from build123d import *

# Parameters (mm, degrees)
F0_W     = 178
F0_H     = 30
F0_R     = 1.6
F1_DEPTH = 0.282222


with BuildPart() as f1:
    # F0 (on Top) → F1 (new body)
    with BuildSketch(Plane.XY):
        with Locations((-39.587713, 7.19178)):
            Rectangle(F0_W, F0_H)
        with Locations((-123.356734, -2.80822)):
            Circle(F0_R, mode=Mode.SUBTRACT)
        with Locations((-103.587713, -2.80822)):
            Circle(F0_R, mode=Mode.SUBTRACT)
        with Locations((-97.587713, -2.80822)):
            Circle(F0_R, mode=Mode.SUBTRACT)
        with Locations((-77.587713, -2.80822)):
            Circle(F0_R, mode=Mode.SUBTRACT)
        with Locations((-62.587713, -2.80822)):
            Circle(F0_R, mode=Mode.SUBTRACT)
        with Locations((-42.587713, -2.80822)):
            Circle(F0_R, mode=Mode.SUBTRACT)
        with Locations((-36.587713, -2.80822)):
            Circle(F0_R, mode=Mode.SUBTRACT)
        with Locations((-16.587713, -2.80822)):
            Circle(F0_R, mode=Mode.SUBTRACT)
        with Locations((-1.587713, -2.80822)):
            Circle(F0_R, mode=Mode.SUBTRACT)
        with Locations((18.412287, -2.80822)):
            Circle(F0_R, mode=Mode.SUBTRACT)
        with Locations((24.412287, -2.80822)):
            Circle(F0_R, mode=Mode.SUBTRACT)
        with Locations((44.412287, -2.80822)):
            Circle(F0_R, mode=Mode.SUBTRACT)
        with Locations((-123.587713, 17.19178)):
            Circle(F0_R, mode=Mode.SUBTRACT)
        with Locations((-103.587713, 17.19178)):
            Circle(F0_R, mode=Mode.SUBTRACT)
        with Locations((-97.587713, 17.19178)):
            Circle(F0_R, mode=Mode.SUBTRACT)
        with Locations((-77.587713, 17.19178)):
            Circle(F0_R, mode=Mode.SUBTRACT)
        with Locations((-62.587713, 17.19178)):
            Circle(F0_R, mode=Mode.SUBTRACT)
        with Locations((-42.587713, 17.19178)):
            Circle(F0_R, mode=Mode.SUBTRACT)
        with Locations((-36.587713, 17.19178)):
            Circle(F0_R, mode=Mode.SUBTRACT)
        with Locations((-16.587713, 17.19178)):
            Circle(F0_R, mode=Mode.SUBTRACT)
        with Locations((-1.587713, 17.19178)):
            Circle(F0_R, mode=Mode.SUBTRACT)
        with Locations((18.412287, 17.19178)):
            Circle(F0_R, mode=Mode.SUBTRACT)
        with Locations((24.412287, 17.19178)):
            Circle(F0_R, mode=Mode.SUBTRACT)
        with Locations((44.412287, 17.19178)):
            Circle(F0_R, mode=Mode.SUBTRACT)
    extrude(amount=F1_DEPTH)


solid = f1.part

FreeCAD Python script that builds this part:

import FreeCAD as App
import Part
import Sketcher
from FreeCAD import Vector
Q = App.Units.Quantity


def add_polygon(sketch, points):
    """Adds a closed chain of lines whose ends are joined by coincident constraints."""
    first, n = sketch.GeometryCount, len(points)
    for a, b in zip(points, points[1:] + points[:1]):
        sketch.addGeometry(Part.LineSegment(App.Vector(*a, 0), App.Vector(*b, 0)), False)
    for i in range(n):
        sketch.addConstraint(Sketcher.Constraint("Coincident", first + i, 2, first + (i + 1) % n, 1))

doc = App.newDocument("Part")
body = doc.addObject("PartDesign::Body", "Body")

# Sketch on XY plane
sketch1 = doc.addObject("Sketcher::SketchObject", "Sketch")
body.addObject(sketch1)
sketch1.AttachmentSupport = (doc.XY_Plane, [""])
sketch1.MapMode = "FlatFace"
add_polygon(sketch1, [(-128.6, 22.2), (-128.6, -7.8), (49.4, -7.8), (49.4, 22.2)])  # lines 0-3
sketch1.addGeometry(Part.Circle(Vector(-123.4, -2.8, 0), Vector(0, 0, 1), 1.6), False)  # 4
sketch1.addGeometry(Part.Circle(Vector(-103.6, -2.8, 0), Vector(0, 0, 1), 1.6), False)  # 5
sketch1.addGeometry(Part.Circle(Vector(-97.6, -2.8, 0), Vector(0, 0, 1), 1.6), False)  # 6
sketch1.addGeometry(Part.Circle(Vector(-77.6, -2.8, 0), Vector(0, 0, 1), 1.6), False)  # 7
sketch1.addGeometry(Part.Circle(Vector(-62.6, -2.8, 0), Vector(0, 0, 1), 1.6), False)  # 8
sketch1.addGeometry(Part.Circle(Vector(-42.6, -2.8, 0), Vector(0, 0, 1), 1.6), False)  # 9
sketch1.addGeometry(Part.Circle(Vector(-36.6, -2.8, 0), Vector(0, 0, 1), 1.6), False)  # 10
sketch1.addGeometry(Part.Circle(Vector(-16.6, -2.8, 0), Vector(0, 0, 1), 1.6), False)  # 11
sketch1.addGeometry(Part.Circle(Vector(-1.6, -2.8, 0), Vector(0, 0, 1), 1.6), False)  # 12
sketch1.addGeometry(Part.Circle(Vector(18.4, -2.8, 0), Vector(0, 0, 1), 1.6), False)  # 13
sketch1.addGeometry(Part.Circle(Vector(24.4, -2.8, 0), Vector(0, 0, 1), 1.6), False)  # 14
sketch1.addGeometry(Part.Circle(Vector(44.4, -2.8, 0), Vector(0, 0, 1), 1.6), False)  # 15
sketch1.addGeometry(Part.Circle(Vector(-123.6, 17.2, 0), Vector(0, 0, 1), 1.6), False)  # 16
sketch1.addGeometry(Part.Circle(Vector(-103.6, 17.2, 0), Vector(0, 0, 1), 1.6), False)  # 17
sketch1.addGeometry(Part.Circle(Vector(-97.6, 17.2, 0), Vector(0, 0, 1), 1.6), False)  # 18
sketch1.addGeometry(Part.Circle(Vector(-77.6, 17.2, 0), Vector(0, 0, 1), 1.6), False)  # 19
sketch1.addGeometry(Part.Circle(Vector(-62.6, 17.2, 0), Vector(0, 0, 1), 1.6), False)  # 20
sketch1.addGeometry(Part.Circle(Vector(-42.6, 17.2, 0), Vector(0, 0, 1), 1.6), False)  # 21
sketch1.addGeometry(Part.Circle(Vector(-36.6, 17.2, 0), Vector(0, 0, 1), 1.6), False)  # 22
sketch1.addGeometry(Part.Circle(Vector(-16.6, 17.2, 0), Vector(0, 0, 1), 1.6), False)  # 23
sketch1.addGeometry(Part.Circle(Vector(-1.6, 17.2, 0), Vector(0, 0, 1), 1.6), False)  # 24
sketch1.addGeometry(Part.Circle(Vector(18.4, 17.2, 0), Vector(0, 0, 1), 1.6), False)  # 25
sketch1.addGeometry(Part.Circle(Vector(24.4, 17.2, 0), Vector(0, 0, 1), 1.6), False)  # 26
sketch1.addGeometry(Part.Circle(Vector(44.4, 17.2, 0), Vector(0, 0, 1), 1.6), False)  # 27
sketch1.addConstraint([
    Sketcher.Constraint("Vertical", 0),
    Sketcher.Constraint("Horizontal", 1),
    Sketcher.Constraint("Vertical", 2),
    Sketcher.Constraint("Horizontal", 3),
    Sketcher.Constraint("Equal", 4, 5),
    Sketcher.Constraint("Equal", 5, 6),
    Sketcher.Constraint("Equal", 6, 7),
    Sketcher.Constraint("Equal", 7, 8),
    Sketcher.Constraint("Equal", 8, 9),
    Sketcher.Constraint("Equal", 9, 10),
    Sketcher.Constraint("Equal", 10, 11),
    Sketcher.Constraint("Equal", 11, 12),
    Sketcher.Constraint("Equal", 12, 13),
    Sketcher.Constraint("Equal", 13, 14),
    Sketcher.Constraint("Equal", 14, 15),
    Sketcher.Constraint("Equal", 15, 16),
    Sketcher.Constraint("Equal", 16, 17),
    Sketcher.Constraint("Equal", 17, 18),
    Sketcher.Constraint("Equal", 18, 19),
    Sketcher.Constraint("Equal", 19, 20),
    Sketcher.Constraint("Equal", 20, 21),
    Sketcher.Constraint("Equal", 21, 22),
    Sketcher.Constraint("Equal", 22, 23),
    Sketcher.Constraint("Equal", 23, 24),
    Sketcher.Constraint("Equal", 24, 25),
    Sketcher.Constraint("Equal", 25, 26),
    Sketcher.Constraint("Equal", 26, 27),
    Sketcher.Constraint("Horizontal", 4, 3, 5, 3),
    Sketcher.Constraint("Horizontal", 5, 3, 6, 3),
    Sketcher.Constraint("Horizontal", 6, 3, 7, 3),
    Sketcher.Constraint("Horizontal", 7, 3, 8, 3),
    Sketcher.Constraint("Horizontal", 8, 3, 9, 3),
    Sketcher.Constraint("Horizontal", 9, 3, 10, 3),
    Sketcher.Constraint("Horizontal", 10, 3, 11, 3),
    Sketcher.Constraint("Horizontal", 11, 3, 12, 3),
    Sketcher.Constraint("Horizontal", 12, 3, 13, 3),
    Sketcher.Constraint("Horizontal", 13, 3, 14, 3),
    Sketcher.Constraint("Horizontal", 14, 3, 15, 3),
    Sketcher.Constraint("Horizontal", 16, 3, 17, 3),
    Sketcher.Constraint("Horizontal", 17, 3, 18, 3),
    Sketcher.Constraint("Horizontal", 18, 3, 19, 3),
    Sketcher.Constraint("Horizontal", 19, 3, 20, 3),
    Sketcher.Constraint("Horizontal", 20, 3, 21, 3),
    Sketcher.Constraint("Horizontal", 21, 3, 22, 3),
    Sketcher.Constraint("Horizontal", 22, 3, 23, 3),
    Sketcher.Constraint("Horizontal", 23, 3, 24, 3),
    Sketcher.Constraint("Horizontal", 24, 3, 25, 3),
    Sketcher.Constraint("Horizontal", 25, 3, 26, 3),
    Sketcher.Constraint("Horizontal", 26, 3, 27, 3),
    Sketcher.Constraint("Vertical", 5, 3, 17, 3),
    Sketcher.Constraint("Vertical", 6, 3, 18, 3),
    Sketcher.Constraint("Vertical", 7, 3, 19, 3),
    Sketcher.Constraint("Vertical", 8, 3, 20, 3),
    Sketcher.Constraint("Vertical", 9, 3, 21, 3),
    Sketcher.Constraint("Vertical", 10, 3, 22, 3),
    Sketcher.Constraint("Vertical", 11, 3, 23, 3),
    Sketcher.Constraint("Vertical", 12, 3, 24, 3),
    Sketcher.Constraint("Vertical", 13, 3, 25, 3),
    Sketcher.Constraint("Vertical", 14, 3, 26, 3),
    Sketcher.Constraint("Vertical", 15, 3, 27, 3),
    Sketcher.Constraint("Diameter", 4, Q("3.2 mm")),
    Sketcher.Constraint("DistanceX", 1, 1, 1, 2, Q("178 mm")),
    Sketcher.Constraint("DistanceY", 0, 2, 0, 1, Q("30 mm")),
    Sketcher.Constraint("DistanceX", 5, 3, 6, 3, Q("6 mm")),
    Sketcher.Constraint("DistanceX", 6, 3, 7, 3, Q("20 mm")),
    Sketcher.Constraint("DistanceX", 7, 3, 8, 3, Q("15 mm")),
    Sketcher.Constraint("DistanceX", 8, 3, 9, 3, Q("20 mm")),
    Sketcher.Constraint("DistanceX", 9, 3, 10, 3, Q("6 mm")),
    Sketcher.Constraint("DistanceX", 10, 3, 11, 3, Q("20 mm")),
    Sketcher.Constraint("DistanceX", 11, 3, 12, 3, Q("15 mm")),
    Sketcher.Constraint("DistanceX", 12, 3, 13, 3, Q("20 mm")),
    Sketcher.Constraint("DistanceX", 13, 3, 14, 3, Q("6 mm")),
    Sketcher.Constraint("DistanceX", 14, 3, 15, 3, Q("20 mm")),
    Sketcher.Constraint("DistanceY", 4, 3, 16, 3, Q("20 mm")),
    Sketcher.Constraint("DistanceX", 16, 3, 5, 3, Q("20 mm")),
    Sketcher.Constraint("DistanceY", 0, 2, 4, 3, Q("5 mm")),
    Sketcher.Constraint("DistanceX", 0, 2, 16, 3, Q("5 mm")),
    Sketcher.Constraint("DistanceY", 4, 3, -1, 1, Q("2.80822 mm")),
    Sketcher.Constraint("DistanceX", 4, 3, 5, 3, Q("19.769021 mm")),
    Sketcher.Constraint("DistanceX", 4, 3, -1, 1, Q("123.356734 mm")),
])
pad1 = doc.addObject("PartDesign::Pad", "Pad")
body.addObject(pad1)
pad1.Profile = sketch1
pad1.Length = 0.282222

doc.recompute()
